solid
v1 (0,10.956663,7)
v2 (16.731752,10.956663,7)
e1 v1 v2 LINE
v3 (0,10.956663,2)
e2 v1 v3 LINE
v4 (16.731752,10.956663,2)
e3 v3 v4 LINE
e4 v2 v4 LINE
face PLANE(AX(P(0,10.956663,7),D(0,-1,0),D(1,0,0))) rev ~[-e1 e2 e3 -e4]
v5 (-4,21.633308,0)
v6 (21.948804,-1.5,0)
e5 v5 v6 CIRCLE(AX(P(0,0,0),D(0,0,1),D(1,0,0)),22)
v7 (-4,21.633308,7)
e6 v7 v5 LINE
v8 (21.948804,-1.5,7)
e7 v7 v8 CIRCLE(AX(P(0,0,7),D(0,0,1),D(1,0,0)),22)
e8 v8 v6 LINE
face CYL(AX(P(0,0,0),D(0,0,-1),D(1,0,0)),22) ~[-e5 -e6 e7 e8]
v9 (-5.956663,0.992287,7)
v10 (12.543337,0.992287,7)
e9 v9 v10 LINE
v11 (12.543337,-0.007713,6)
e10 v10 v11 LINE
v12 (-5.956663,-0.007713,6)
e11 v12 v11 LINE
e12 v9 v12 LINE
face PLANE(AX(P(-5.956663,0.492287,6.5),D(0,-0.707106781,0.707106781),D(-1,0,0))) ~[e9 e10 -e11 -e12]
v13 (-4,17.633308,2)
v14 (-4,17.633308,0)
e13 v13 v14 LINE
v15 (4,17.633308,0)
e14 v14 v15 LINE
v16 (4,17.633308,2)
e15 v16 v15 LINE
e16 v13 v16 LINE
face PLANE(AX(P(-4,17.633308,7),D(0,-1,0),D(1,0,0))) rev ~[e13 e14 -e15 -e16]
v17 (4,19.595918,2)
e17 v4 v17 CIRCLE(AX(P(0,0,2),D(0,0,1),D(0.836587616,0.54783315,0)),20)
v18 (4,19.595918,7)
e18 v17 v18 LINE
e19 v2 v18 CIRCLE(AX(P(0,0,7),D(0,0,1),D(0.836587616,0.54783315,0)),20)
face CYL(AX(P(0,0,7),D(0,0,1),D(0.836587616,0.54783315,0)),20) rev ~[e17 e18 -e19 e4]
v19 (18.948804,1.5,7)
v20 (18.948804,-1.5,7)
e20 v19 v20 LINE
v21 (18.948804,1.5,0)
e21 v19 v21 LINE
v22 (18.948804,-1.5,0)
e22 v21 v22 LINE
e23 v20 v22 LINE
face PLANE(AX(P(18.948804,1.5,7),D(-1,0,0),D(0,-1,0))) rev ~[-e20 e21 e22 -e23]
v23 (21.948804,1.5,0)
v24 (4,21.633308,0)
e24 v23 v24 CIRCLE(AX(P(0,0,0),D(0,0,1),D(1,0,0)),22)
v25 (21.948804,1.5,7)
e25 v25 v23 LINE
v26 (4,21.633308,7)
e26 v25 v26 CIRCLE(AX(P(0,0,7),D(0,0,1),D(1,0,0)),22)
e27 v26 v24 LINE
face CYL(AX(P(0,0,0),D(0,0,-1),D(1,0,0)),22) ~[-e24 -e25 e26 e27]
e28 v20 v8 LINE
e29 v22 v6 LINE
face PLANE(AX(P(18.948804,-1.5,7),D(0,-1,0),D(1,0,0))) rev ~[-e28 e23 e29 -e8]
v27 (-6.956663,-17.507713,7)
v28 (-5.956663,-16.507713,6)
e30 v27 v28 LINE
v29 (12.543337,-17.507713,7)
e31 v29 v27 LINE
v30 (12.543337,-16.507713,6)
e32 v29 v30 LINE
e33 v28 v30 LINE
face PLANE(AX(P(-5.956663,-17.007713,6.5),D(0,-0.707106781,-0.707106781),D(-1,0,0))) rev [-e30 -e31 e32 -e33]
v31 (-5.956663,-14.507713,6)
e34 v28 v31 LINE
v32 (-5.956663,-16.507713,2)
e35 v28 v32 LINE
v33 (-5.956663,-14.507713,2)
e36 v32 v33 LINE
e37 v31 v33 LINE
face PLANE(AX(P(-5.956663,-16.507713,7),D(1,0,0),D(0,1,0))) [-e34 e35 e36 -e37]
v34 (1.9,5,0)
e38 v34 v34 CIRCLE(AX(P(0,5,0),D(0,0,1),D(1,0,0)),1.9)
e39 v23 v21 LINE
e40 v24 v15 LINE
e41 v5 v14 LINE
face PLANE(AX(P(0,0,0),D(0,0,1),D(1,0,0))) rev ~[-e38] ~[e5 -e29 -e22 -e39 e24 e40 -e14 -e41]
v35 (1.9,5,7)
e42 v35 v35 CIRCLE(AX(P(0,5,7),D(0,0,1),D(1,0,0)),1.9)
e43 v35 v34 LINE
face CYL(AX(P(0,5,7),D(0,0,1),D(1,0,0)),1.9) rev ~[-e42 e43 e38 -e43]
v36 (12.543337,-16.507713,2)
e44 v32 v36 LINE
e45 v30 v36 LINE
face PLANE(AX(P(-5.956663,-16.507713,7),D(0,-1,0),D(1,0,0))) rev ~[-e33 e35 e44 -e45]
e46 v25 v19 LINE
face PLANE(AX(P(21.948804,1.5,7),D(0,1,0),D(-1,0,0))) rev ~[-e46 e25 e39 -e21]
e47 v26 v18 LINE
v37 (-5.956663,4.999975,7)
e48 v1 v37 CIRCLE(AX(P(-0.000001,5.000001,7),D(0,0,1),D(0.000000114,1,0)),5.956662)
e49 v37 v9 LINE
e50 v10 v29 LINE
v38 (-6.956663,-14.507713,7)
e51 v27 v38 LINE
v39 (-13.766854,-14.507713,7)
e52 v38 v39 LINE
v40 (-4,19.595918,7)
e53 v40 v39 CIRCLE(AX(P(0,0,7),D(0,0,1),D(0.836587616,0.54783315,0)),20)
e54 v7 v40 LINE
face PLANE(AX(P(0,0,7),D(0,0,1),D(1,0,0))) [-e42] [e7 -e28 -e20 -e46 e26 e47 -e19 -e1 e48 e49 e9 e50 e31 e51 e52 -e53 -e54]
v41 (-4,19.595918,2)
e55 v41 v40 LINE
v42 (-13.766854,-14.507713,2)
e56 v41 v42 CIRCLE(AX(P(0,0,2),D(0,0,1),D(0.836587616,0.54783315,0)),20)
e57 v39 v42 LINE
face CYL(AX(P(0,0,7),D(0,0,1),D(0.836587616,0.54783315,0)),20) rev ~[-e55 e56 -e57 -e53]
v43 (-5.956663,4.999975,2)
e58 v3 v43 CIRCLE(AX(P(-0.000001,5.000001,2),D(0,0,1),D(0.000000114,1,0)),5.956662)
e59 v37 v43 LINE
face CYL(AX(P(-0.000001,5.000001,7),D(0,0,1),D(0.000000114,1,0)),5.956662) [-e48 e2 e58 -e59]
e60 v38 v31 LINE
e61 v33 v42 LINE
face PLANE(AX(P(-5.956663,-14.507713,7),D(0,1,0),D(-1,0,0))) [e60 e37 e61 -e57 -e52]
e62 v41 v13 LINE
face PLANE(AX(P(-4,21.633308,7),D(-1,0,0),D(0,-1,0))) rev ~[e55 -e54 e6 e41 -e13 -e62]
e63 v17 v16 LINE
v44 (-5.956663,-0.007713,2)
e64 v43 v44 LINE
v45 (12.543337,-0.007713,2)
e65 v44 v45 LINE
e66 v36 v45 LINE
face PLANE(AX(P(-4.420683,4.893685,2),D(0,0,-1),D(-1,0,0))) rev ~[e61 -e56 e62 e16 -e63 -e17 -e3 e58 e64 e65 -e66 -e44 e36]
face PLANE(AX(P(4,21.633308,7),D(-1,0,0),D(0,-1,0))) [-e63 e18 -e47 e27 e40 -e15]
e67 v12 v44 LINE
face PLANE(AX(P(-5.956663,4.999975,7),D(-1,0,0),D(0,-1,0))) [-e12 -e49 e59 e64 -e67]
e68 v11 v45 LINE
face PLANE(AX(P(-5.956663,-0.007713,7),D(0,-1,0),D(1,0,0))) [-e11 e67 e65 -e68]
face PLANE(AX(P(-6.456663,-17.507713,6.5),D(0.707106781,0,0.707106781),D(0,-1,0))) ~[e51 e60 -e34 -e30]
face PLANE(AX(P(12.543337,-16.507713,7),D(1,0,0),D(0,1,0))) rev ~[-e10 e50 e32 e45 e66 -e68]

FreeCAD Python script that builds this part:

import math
import FreeCAD as App
import Part
import Sketcher


def edges_at(feature, points):
    """Names of the edges that pass closest to the given points."""
    edges = feature.Shape.Edges
    near = lambda p: min(range(len(edges)), key=lambda i: edges[i].distToShape(Part.Vertex(*p))[0])
    return sorted({f"Edge{near(p) + 1}" for p in points})


def add_polygon(sketch, points):
    """Adds a closed chain of lines whose ends are joined by coincident constraints."""
    first, n = sketch.GeometryCount, len(points)
    for a, b in zip(points, points[1:] + points[:1]):
        sketch.addGeometry(Part.LineSegment(App.Vector(*a, 0), App.Vector(*b, 0)), False)
    for i in range(n):
        sketch.addConstraint(Sketcher.Constraint("Coincident", first + i, 2, first + (i + 1) % n, 1))

doc = App.newDocument("Part")
body = doc.addObject("PartDesign::Body", "Body")

# Sketch on XY plane
sketch1 = body.newObject("Sketcher::SketchObject", "Sketch")
sketch1.AttachmentSupport = (doc.getObject("XY_Plane"), [""])
sketch1.MapMode = "FlatFace"
sketch1.addGeometry(Part.Circle(App.Vector(0, 0, 0), App.Vector(0, 0, 1), 22), False)
sketch1.addConstraint([
    Sketcher.Constraint("Coincident", 0, 3, -1, 1),
    Sketcher.Constraint("Diameter", 0, 44.0),
])
pad1 = body.newObject("PartDesign::Pad", "Pad")
pad1.Profile = sketch1
pad1.Length = 7

# Sketch on XY plane
sketch2 = body.newObject("Sketcher::SketchObject", "Sketch001")
sketch2.AttachmentSupport = (doc.getObject("XY_Plane"), [""])
sketch2.MapMode = "FlatFace"
sketch2.AttachmentOffset = App.Placement(App.Vector(0, 0, 7), App.Rotation())
sketch2.addGeometry(Part.Circle(App.Vector(0, 5, 0), App.Vector(0, 0, 1), 1.9), False)
sketch2.addConstraint([
    Sketcher.Constraint("PointOnObject", 0, 3, -2),
    Sketcher.Constraint("Diameter", 0, 3.8),
    Sketcher.Constraint("DistanceY", -1, 1, 0, 3, 5.0),
])
pocket1 = body.newObject("PartDesign::Pocket", "Pocket")
pocket1.Profile = sketch2
pocket1.Type = "ThroughAll"

# Sketch on XY plane
sketch3 = body.newObject("Sketcher::SketchObject", "Sketch002")
sketch3.AttachmentSupport = (doc.getObject("XY_Plane"), [""])
sketch3.MapMode = "FlatFace"
sketch3.AttachmentOffset = App.Placement(App.Vector(0, 0, 7), App.Rotation())
sketch3.addGeometry([
    Part.ArcOfCircle(Part.Circle(App.Vector(0, 0, 0), App.Vector(0, 0, 1), 22), math.radians(-3.91), math.radians(3.91)),
    Part.LineSegment(App.Vector(21.9, 1.5, 0), App.Vector(18.9, 1.5, 0)),
    Part.LineSegment(App.Vector(18.9, 1.5, 0), App.Vector(18.9, -1.5, 0)),
    Part.LineSegment(App.Vector(18.9, -1.5, 0), App.Vector(21.9, -1.5, 0)),
], False)
sketch3.addConstraint([
    Sketcher.Constraint("Coincident", 0, 2, 1, 1),
    Sketcher.Constraint("Coincident", 1, 2, 2, 1),
    Sketcher.Constraint("Coincident", 2, 2, 3, 1),
    Sketcher.Constraint("Coincident", 3, 2, 0, 1),
    Sketcher.Constraint("Horizontal", 1),
    Sketcher.Constraint("Vertical", 2),
    Sketcher.Constraint("Horizontal", 3),
    Sketcher.Constraint("Symmetric", 0, 2, 3, 2, -1),
    Sketcher.Constraint("Equal", 3, 2),
    Sketcher.Constraint("DistanceX", 1, 2, 1, 1, 3.0),
    Sketcher.Constraint("Radius", 0, 21.999971),
    Sketcher.Constraint("DistanceX", -1, 1, 0, 2, 21.948804),
])
pocket2 = body.newObject("PartDesign::Pocket", "Pocket001")
pocket2.Profile = sketch3
pocket2.Type = "ThroughAll"

# Sketch on XY plane
sketch4 = body.newObject("Sketcher::SketchObject", "Sketch003")
sketch4.AttachmentSupport = (doc.getObject("XY_Plane"), [""])
sketch4.MapMode = "FlatFace"
sketch4.AttachmentOffset = App.Placement(App.Vector(0, 0, 7), App.Rotation())
add_polygon(sketch4, [(-6, 0), (-6, -17), (13, -17), (13, 0)])  # lines 0-3
sketch4.addConstraint([
    Sketcher.Constraint("Vertical", 0),
    Sketcher.Constraint("Horizontal", 1),
    Sketcher.Constraint("Vertical", 2),
    Sketcher.Constraint("Horizontal", 3),
    Sketcher.Constraint("DistanceX", 1, 1, 1, 2, 18.5),
    Sketcher.Constraint("DistanceY", 0, 2, 0, 1, 16.5),
    Sketcher.Constraint("DistanceX", 0, 2, -1, 1, 5.956663),
    Sketcher.Constraint("DistanceY", 0, 2, -1, 1, 16.507713),
])
pocket3 = body.newObject("PartDesign::Pocket", "Pocket002")
pocket3.Profile = sketch4
pocket3.Length = 5

# Sketch on XY plane
sketch5 = body.newObject("Sketcher::SketchObject", "Sketch004")
sketch5.AttachmentSupport = (doc.getObject("XY_Plane"), [""])
sketch5.MapMode = "FlatFace"
sketch5.AttachmentOffset = App.Placement(App.Vector(0, 0, 7), App.Rotation())
sketch5.addGeometry([
    Part.ArcOfCircle(Part.Circle(App.Vector(0, 0, 0), App.Vector(0, 0, 1), 22), math.radians(80), math.radians(100)),
    Part.LineSegment(App.Vector(-4, 21.6, 0), App.Vector(-4, 17.6, 0)),
    Part.LineSegment(App.Vector(-4, 17.6, 0), App.Vector(4, 17.6, 0)),
    Part.LineSegment(App.Vector(4, 17.6, 0), App.Vector(4, 21.6, 0)),
], False)
sketch5.addConstraint([
    Sketcher.Constraint("Coincident", 0, 2, 1, 1),
    Sketcher.Constraint("Coincident", 1, 2, 2, 1),
    Sketcher.Constraint("Coincident", 2, 2, 3, 1),
    Sketcher.Constraint("Coincident", 3, 2, 0, 1),
    Sketcher.Constraint("Vertical", 1),
    Sketcher.Constraint("Horizontal", 2),
    Sketcher.Constraint("Vertical", 3),
    Sketcher.Constraint("Symmetric", 0, 2, 3, 2, -2),
    Sketcher.Constraint("DistanceX", 2, 1, 2, 2, 8.0),
    Sketcher.Constraint("DistanceY", 1, 2, 1, 1, 4.0),
    Sketcher.Constraint("Radius", 0, 22.00002),
    Sketcher.Constraint("DistanceY", -1, 1, 0, 2, 21.633308),
])
pocket4 = body.newObject("PartDesign::Pocket", "Pocket003")
pocket4.Profile = sketch5
pocket4.Type = "ThroughAll"

# Sketch on XY plane
sketch6 = body.newObject("Sketcher::SketchObject", "Sketch005")
sketch6.AttachmentSupport = (doc.getObject("XY_Plane"), [""])
sketch6.MapMode = "FlatFace"
sketch6.AttachmentOffset = App.Placement(App.Vector(0, 0, 7), App.Rotation())
sketch6.addGeometry([
    Part.ArcOfCircle(Part.Circle(App.Vector(0, 5, 0), App.Vector(0, 0, 1), 6), math.radians(90), math.radians(180)),  # 0
    Part.LineSegment(App.Vector(0, 11, 0), App.Vector(17, 11, 0)),  # 1
    Part.ArcOfCircle(Part.Circle(App.Vector(0, 0, 0), App.Vector(0, 0, 1), 20), math.radians(33), math.radians(227)),  # 2
    Part.LineSegment(App.Vector(-14, -15, 0), App.Vector(-6, -15, 0)),  # 3
    Part.LineSegment(App.Vector(-6, -15, 0), App.Vector(-6, 5, 0)),  # 4
], False)
sketch6.addConstraint([
    Sketcher.Constraint("Tangent", 0, 1, 1, 1),
    Sketcher.Constraint("Coincident", 1, 2, 2, 1),
    Sketcher.Constraint("Coincident", 2, 2, 3, 1),
    Sketcher.Constraint("Coincident", 3, 2, 4, 1),
    Sketcher.Constraint("Coincident", 4, 2, 0, 2),
    Sketcher.Constraint("Horizontal", 1),
    Sketcher.Constraint("Horizontal", 3),
    Sketcher.Constraint("Vertical", 4),
    Sketcher.Constraint("Coincident", 2, 3, -1, 1),
    Sketcher.Constraint("PointOnObject", 0, 3, -2),
    Sketcher.Constraint("Radius", 2, 20.0),
    Sketcher.Constraint("DistanceY", -1, 1, 0, 3, 5.000001),
    Sketcher.Constraint("Radius", 0, 5.956662),
    Sketcher.Constraint("DistanceX", 3, 1, 3, 2, 7.810191),
    Sketcher.Constraint("DistanceY", 4, 1, 4, 2, 19.507688),
])
pocket5 = body.newObject("PartDesign::Pocket", "Pocket004")
pocket5.Profile = sketch6
pocket5.Length = 5
doc.recompute()

chamfer = body.newObject("PartDesign::Chamfer", "Chamfer")
chamfer.Base = (pocket5, edges_at(pocket5, [(3.293, -0.008, 7)]))
chamfer.Size = 1
doc.recompute()

chamfer2 = body.newObject("PartDesign::Chamfer", "Chamfer001")
chamfer2.Base = (chamfer, edges_at(chamfer, [(3.293, -16.508, 7)]))
chamfer2.Size = 1
doc.recompute()

chamfer3 = body.newObject("PartDesign::Chamfer", "Chamfer002")
chamfer3.Base = (chamfer2, edges_at(chamfer2, [(-5.957, -16.008, 7)]))
chamfer3.Size = 1

doc.recompute()
